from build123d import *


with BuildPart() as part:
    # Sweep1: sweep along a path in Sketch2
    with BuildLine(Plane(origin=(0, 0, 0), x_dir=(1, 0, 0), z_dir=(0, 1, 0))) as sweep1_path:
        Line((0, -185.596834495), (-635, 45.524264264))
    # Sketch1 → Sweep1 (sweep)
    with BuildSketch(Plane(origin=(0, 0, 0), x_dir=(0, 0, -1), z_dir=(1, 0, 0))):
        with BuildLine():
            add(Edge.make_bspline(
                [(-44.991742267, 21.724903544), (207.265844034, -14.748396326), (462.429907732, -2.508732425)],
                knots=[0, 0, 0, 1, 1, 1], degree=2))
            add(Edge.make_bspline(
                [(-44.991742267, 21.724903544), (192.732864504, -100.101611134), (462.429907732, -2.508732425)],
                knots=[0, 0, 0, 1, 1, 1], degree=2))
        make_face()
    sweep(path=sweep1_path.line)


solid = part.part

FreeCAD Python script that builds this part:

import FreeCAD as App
import Part
import Sketcher

doc = App.newDocument("Part")
body = doc.addObject("PartDesign::Body", "Body")

# Sketch on YZ plane
sketch1 = body.newObject("Sketcher::SketchObject", "Sketch")
sketch1.AttachmentSupport = (doc.getObject("YZ_Plane"), [""])
sketch1.MapMode = "FlatFace"
sketch1.addGeometry(Part.BSplineCurve([App.Vector(21.724904, 44.991742, 0), App.Vector(-14.748396, -207.265844, 0), App.Vector(-2.508732, -462.429908, 0)], [3, 3], [0, 1], False, 2, [1, 1, 1], False), False)
sketch1.addGeometry(Part.BSplineCurve([App.Vector(21.724904, 44.991742, 0), App.Vector(-100.101611, -192.732865, 0), App.Vector(-2.508732, -462.429908, 0)], [3, 3], [0, 1], False, 2, [1, 1, 1], False), False)
sketch1.addConstraint(Sketcher.Constraint("Block", 0))
sketch1.addConstraint(Sketcher.Constraint("Block", 1))

# Sketch on an angled plane
sketch2 = body.newObject("Sketcher::SketchObject", "Sketch001")
sketch2.Placement = App.Placement(App.Vector(-59.649673, 0, 163.886129), App.Rotation(App.Vector(-0.939692621, 0, -0.342020143), App.Vector(0, 1, 0), App.Vector(0.342020143, 0, -0.939692621), "ZXY"))
sketch2.addGeometry(Part.LineSegment(App.Vector(-63, 0, 0), App.Vector(612, 0, 0)), False)
sketch2.addConstraint(Sketcher.Constraint("Horizontal", 0))
sketch2.addConstraint(Sketcher.Constraint("PointOnObject", 0, 1, -1))
sketch2.addConstraint(Sketcher.Constraint("DistanceX", 0, 1, 0, 2, 675.752886))
sketch2.addConstraint(Sketcher.Constraint("DistanceX", -1, 1, 0, 2, 612.27503))
doc.recompute()

additivepipe = body.newObject("PartDesign::AdditivePipe", "AdditivePipe")
additivepipe.Profile = sketch1
additivepipe.Spine = (sketch2, ["Edge1"])

doc.recompute()
